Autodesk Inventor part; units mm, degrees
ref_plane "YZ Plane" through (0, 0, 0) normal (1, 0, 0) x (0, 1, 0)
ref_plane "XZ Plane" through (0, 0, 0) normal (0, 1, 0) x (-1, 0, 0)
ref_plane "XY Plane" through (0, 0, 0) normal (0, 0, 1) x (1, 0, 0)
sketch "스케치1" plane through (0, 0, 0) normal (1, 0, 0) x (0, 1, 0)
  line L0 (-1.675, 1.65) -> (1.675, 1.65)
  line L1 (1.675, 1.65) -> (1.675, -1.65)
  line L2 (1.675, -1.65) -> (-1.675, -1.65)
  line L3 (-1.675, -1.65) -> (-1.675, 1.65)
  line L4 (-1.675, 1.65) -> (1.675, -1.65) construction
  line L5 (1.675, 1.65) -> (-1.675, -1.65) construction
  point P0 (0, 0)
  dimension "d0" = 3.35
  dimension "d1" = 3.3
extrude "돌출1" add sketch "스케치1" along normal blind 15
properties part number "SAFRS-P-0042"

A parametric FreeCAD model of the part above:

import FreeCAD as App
import Part
import Sketcher
from FreeCAD import Vector

doc = App.newDocument("Part")
body = doc.addObject("PartDesign::Body", "Body")

sketch1 = body.newObject("Sketcher::SketchObject", "Sketch")
sketch1.AttachmentSupport = (doc.getObject("YZ_Plane"), [""])
sketch1.MapMode = "FlatFace"
sketch1.addGeometry([
    Part.LineSegment(Vector(1.7, 1.6, 0), Vector(-1.7, 1.6, 0)),
    Part.LineSegment(Vector(-1.7, 1.6, 0), Vector(-1.7, -1.6, 0)),
    Part.LineSegment(Vector(-1.7, -1.6, 0), Vector(1.7, -1.6, 0)),
    Part.LineSegment(Vector(1.7, -1.6, 0), Vector(1.7, 1.6, 0)),
], False)
sketch1.addConstraint([
    Sketcher.Constraint("Coincident", 0, 2, 1, 1),
    Sketcher.Constraint("Coincident", 1, 2, 2, 1),
    Sketcher.Constraint("Coincident", 2, 2, 3, 1),
    Sketcher.Constraint("Coincident", 3, 2, 0, 1),
    Sketcher.Constraint("Horizontal", 0),
    Sketcher.Constraint("Vertical", 1),
    Sketcher.Constraint("Horizontal", 2),
    Sketcher.Constraint("Vertical", 3),
    Sketcher.Constraint("Symmetric", 0, 2, 2, 2, -1, 1),
    Sketcher.Constraint("DistanceY", 1, 2, 1, 1, 3.3),
    Sketcher.Constraint("DistanceX", 0, 2, 0, 1, 3.35),
])
pad1 = body.newObject("PartDesign::Pad", "Pad")
pad1.Profile = sketch1
pad1.Length = 15

doc.recompute()
